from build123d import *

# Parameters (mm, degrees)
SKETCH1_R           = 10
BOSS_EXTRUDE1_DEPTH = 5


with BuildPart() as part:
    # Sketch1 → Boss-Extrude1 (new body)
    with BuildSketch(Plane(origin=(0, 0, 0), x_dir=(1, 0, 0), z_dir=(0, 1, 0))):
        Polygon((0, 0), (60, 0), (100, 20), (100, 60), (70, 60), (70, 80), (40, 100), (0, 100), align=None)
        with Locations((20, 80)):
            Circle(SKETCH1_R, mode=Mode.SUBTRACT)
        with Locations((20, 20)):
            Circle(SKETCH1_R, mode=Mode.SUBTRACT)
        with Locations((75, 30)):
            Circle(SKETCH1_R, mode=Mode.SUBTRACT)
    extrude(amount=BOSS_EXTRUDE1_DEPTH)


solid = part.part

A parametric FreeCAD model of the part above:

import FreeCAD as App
import Part
import Sketcher

V = App.Vector

doc = App.newDocument("Part")
body = doc.addObject("PartDesign::Body", "Body")

# Sketch on XZ plane
sketch1 = doc.addObject("Sketcher::SketchObject", "Sketch")
body.addObject(sketch1)
sketch1.AttachmentSupport = (doc.XZ_Plane, [""])
sketch1.MapMode = "FlatFace"
sketch1.addGeometry([
    Part.LineSegment(V(0, 0, 0), V(60, 0, 0)),  # 0
    Part.LineSegment(V(60, 0, 0), V(100, -20, 0)),  # 1
    Part.LineSegment(V(100, -20, 0), V(100, -60, 0)),  # 2
    Part.LineSegment(V(100, -60, 0), V(70, -60, 0)),  # 3
    Part.LineSegment(V(70, -60, 0), V(70, -80, 0)),  # 4
    Part.LineSegment(V(70, -80, 0), V(40, -100, 0)),  # 5
    Part.LineSegment(V(40, -100, 0), V(0, -100, 0)),  # 6
    Part.LineSegment(V(0, -100, 0), V(0, 0, 0)),  # 7
    Part.Circle(V(20, -20, 0), V(0, 0, 1), 10),  # 8
    Part.Circle(V(75, -30, 0), V(0, 0, 1), 10),  # 9
    Part.Circle(V(20, -80, 0), V(0, 0, 1), 10),  # 10
], False)
sketch1.addConstraint([
    Sketcher.Constraint("Coincident", 0, 2, 1, 1),
    Sketcher.Constraint("Coincident", 1, 2, 2, 1),
    Sketcher.Constraint("Coincident", 2, 2, 3, 1),
    Sketcher.Constraint("Coincident", 3, 2, 4, 1),
    Sketcher.Constraint("Coincident", 4, 2, 5, 1),
    Sketcher.Constraint("Coincident", 5, 2, 6, 1),
    Sketcher.Constraint("Coincident", 6, 2, 7, 1),
    Sketcher.Constraint("Coincident", 7, 2, 0, 1),
    Sketcher.Constraint("Horizontal", 0),
    Sketcher.Constraint("Vertical", 2),
    Sketcher.Constraint("Horizontal", 3),
    Sketcher.Constraint("Vertical", 4),
    Sketcher.Constraint("Horizontal", 6),
    Sketcher.Constraint("Vertical", 7),
    Sketcher.Constraint("Coincident", 7, 2, -1, 1),
    Sketcher.Constraint("Equal", 8, 9),
    Sketcher.Constraint("Equal", 9, 10),
    Sketcher.Constraint("Horizontal", 8, 3, 1, 2),
    Sketcher.Constraint("Horizontal", 10, 3, 4, 2),
    Sketcher.Constraint("Vertical", 8, 3, 10, 3),
    Sketcher.Constraint("Equal", 6, 2),
    Sketcher.Constraint("Diameter", 8, 20.0),
    Sketcher.Constraint("DistanceX", 0, 1, 0, 2, 60.0),
    Sketcher.Constraint("DistanceX", 3, 2, 3, 1, 30.0),
    Sketcher.Constraint("DistanceX", 6, 2, 6, 1, 40.0),
    Sketcher.Constraint("DistanceY", 4, 2, 4, 1, 20.0),
    Sketcher.Constraint("DistanceY", 7, 1, 7, 2, 100.0),
    Sketcher.Constraint("DistanceX", -1, 1, 8, 3, 20.0),
    Sketcher.Constraint("DistanceY", 8, 3, -1, 1, 20.0),
    Sketcher.Constraint("DistanceX", -1, 1, 9, 3, 75.0),
    Sketcher.Constraint("DistanceY", 9, 3, -1, 1, 30.0),
    Sketcher.Constraint("DistanceX", -1, 1, 1, 2, 100.0),
])
pad1 = doc.addObject("PartDesign::Pad", "Pad")
body.addObject(pad1)
pad1.Profile = sketch1
pad1.Length = 5
pad1.Reversed = True

doc.recompute()
